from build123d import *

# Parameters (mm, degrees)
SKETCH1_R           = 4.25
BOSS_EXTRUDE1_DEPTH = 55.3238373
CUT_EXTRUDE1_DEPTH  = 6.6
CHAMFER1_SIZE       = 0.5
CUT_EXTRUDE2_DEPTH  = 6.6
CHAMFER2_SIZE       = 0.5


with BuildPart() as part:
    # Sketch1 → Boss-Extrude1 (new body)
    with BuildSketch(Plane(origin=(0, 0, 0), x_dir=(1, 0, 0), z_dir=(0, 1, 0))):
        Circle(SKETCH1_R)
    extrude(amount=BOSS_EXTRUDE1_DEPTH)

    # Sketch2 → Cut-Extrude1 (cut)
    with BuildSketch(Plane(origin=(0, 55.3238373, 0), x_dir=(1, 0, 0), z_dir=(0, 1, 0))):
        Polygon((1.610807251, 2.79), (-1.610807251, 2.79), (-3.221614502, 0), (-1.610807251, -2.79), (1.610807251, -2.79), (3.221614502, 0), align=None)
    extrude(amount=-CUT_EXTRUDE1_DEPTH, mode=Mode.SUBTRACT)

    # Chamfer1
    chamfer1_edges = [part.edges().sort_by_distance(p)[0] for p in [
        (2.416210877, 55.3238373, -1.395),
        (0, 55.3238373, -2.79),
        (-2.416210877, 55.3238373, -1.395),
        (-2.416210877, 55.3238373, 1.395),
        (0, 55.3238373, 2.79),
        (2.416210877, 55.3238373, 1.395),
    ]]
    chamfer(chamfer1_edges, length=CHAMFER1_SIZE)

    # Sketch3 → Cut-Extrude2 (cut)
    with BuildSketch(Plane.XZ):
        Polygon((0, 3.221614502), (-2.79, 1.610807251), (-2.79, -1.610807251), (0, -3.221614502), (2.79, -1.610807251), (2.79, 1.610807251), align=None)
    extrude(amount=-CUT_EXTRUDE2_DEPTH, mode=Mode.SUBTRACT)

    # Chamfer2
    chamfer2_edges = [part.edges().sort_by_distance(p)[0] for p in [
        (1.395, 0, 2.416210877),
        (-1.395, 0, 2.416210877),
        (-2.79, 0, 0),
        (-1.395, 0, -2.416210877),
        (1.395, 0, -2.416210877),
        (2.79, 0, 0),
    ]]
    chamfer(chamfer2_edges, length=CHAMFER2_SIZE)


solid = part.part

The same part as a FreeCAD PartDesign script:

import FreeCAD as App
import Part
import Sketcher
Q = App.Units.Quantity


def edges_at(feature, points):
    """Names of the edges that pass closest to the given points."""
    edges = feature.Shape.Edges
    near = lambda p: min(range(len(edges)), key=lambda i: edges[i].distToShape(Part.Vertex(*p))[0])
    return sorted({f"Edge{near(p) + 1}" for p in points})


def add_polygon(sketch, points):
    """Adds a closed chain of lines whose ends are joined by coincident constraints."""
    first, n = sketch.GeometryCount, len(points)
    for a, b in zip(points, points[1:] + points[:1]):
        sketch.addGeometry(Part.LineSegment(App.Vector(*a, 0), App.Vector(*b, 0)), False)
    for i in range(n):
        sketch.addConstraint(Sketcher.Constraint("Coincident", first + i, 2, first + (i + 1) % n, 1))

doc = App.newDocument("Part")
body = doc.addObject("PartDesign::Body", "Body")

sketch1 = body.newObject("Sketcher::SketchObject", "Sketch")
sketch1.AttachmentSupport = (doc.getObject("XZ_Plane"), [""])
sketch1.MapMode = "FlatFace"
sketch1.addGeometry(Part.Circle(App.Vector(0, 0, 0), App.Vector(0, 0, 1), 4.2), False)
sketch1.addConstraint([
    Sketcher.Constraint("Coincident", 0, 3, -1, 1),
    Sketcher.Constraint("Diameter", 0, 8.5),
])
pad1 = body.newObject("PartDesign::Pad", "Pad")
pad1.Profile = sketch1
pad1.Length = 55.323837
pad1.Reversed = True

sketch2 = body.newObject("Sketcher::SketchObject", "Sketch001")
sketch2.AttachmentSupport = (doc.getObject("XZ_Plane"), [""])
sketch2.MapMode = "FlatFace"
sketch2.AttachmentOffset = App.Placement(App.Vector(0, 0, -55.323837), App.Rotation())
add_polygon(sketch2, [(1.6, -2.8), (-1.6, -2.8), (-3.2, 0), (-1.6, 2.8), (1.6, 2.8), (3.2, 0)])
sketch2.addConstraint([
    Sketcher.Constraint("Horizontal", 0),
    Sketcher.Constraint("Horizontal", 3),
    Sketcher.Constraint("Symmetric", 0, 2, 3, 2, -1, 1),
    Sketcher.Constraint("Symmetric", 1, 2, 4, 2, -1, 1),
    Sketcher.Constraint("PointOnObject", 1, 2, -1),
    Sketcher.Constraint("Parallel", 2, 5),
    Sketcher.Constraint("Vertical", 0, 2, 2, 2),
    Sketcher.Constraint("Angle", 1, Q("120 deg")),
    Sketcher.Constraint("DistanceY", 0, 2, -1, 1, 2.79),
    Sketcher.Constraint("DistanceX", 0, 2, 0, 1, 3.221615),
])
pocket1 = body.newObject("PartDesign::Pocket", "Pocket")
pocket1.Profile = sketch2
pocket1.Length = 6.6
pocket1.Reversed = True
doc.recompute()

chamfer = body.newObject("PartDesign::Chamfer", "Chamfer")
chamfer.Base = (pocket1, edges_at(pocket1, [
    (2.416, 55.324, -1.395),
    (0, 55.324, -2.79),
    (-2.416, 55.324, -1.395),
    (-2.416, 55.324, 1.395),
    (0, 55.324, 2.79),
    (2.416, 55.324, 1.395),
]))
chamfer.Size = 0.5

sketch3 = body.newObject("Sketcher::SketchObject", "Sketch002")
sketch3.AttachmentSupport = (doc.getObject("XZ_Plane"), [""])
sketch3.MapMode = "FlatFace"
add_polygon(sketch3, [(0, 3.2), (-2.8, 1.6), (-2.8, -1.6), (0, -3.2), (2.8, -1.6), (2.8, 1.6)])
sketch3.addConstraint([
    Sketcher.Constraint("Vertical", 1),
    Sketcher.Constraint("Vertical", 4),
    Sketcher.Constraint("Symmetric", 0, 2, 3, 2, -1, 1),
    Sketcher.Constraint("Symmetric", 2, 2, 5, 2, -1, 1),
    Sketcher.Constraint("PointOnObject", 2, 2, -2),
    Sketcher.Constraint("Parallel", 2, 5),
    Sketcher.Constraint("Horizontal", 1, 2, 3, 2),
    Sketcher.Constraint("Angle", 0, Q("-150 deg")),
    Sketcher.Constraint("DistanceX", 0, 2, -1, 1, 2.79),
    Sketcher.Constraint("DistanceY", 1, 2, 1, 1, 3.221615),
])
pocket2 = body.newObject("PartDesign::Pocket", "Pocket001")
pocket2.Profile = sketch3
pocket2.Length = 6.6
doc.recompute()

chamfer2 = body.newObject("PartDesign::Chamfer", "Chamfer001")
chamfer2.Base = (pocket2, edges_at(pocket2, [
    (1.395, 0, 2.416),
    (-1.395, 0, 2.416),
    (-2.79, 0, 0),
    (-1.395, 0, -2.416),
    (1.395, 0, -2.416),
    (2.79, 0, 0),
]))
chamfer2.Size = 0.5

doc.recompute()
